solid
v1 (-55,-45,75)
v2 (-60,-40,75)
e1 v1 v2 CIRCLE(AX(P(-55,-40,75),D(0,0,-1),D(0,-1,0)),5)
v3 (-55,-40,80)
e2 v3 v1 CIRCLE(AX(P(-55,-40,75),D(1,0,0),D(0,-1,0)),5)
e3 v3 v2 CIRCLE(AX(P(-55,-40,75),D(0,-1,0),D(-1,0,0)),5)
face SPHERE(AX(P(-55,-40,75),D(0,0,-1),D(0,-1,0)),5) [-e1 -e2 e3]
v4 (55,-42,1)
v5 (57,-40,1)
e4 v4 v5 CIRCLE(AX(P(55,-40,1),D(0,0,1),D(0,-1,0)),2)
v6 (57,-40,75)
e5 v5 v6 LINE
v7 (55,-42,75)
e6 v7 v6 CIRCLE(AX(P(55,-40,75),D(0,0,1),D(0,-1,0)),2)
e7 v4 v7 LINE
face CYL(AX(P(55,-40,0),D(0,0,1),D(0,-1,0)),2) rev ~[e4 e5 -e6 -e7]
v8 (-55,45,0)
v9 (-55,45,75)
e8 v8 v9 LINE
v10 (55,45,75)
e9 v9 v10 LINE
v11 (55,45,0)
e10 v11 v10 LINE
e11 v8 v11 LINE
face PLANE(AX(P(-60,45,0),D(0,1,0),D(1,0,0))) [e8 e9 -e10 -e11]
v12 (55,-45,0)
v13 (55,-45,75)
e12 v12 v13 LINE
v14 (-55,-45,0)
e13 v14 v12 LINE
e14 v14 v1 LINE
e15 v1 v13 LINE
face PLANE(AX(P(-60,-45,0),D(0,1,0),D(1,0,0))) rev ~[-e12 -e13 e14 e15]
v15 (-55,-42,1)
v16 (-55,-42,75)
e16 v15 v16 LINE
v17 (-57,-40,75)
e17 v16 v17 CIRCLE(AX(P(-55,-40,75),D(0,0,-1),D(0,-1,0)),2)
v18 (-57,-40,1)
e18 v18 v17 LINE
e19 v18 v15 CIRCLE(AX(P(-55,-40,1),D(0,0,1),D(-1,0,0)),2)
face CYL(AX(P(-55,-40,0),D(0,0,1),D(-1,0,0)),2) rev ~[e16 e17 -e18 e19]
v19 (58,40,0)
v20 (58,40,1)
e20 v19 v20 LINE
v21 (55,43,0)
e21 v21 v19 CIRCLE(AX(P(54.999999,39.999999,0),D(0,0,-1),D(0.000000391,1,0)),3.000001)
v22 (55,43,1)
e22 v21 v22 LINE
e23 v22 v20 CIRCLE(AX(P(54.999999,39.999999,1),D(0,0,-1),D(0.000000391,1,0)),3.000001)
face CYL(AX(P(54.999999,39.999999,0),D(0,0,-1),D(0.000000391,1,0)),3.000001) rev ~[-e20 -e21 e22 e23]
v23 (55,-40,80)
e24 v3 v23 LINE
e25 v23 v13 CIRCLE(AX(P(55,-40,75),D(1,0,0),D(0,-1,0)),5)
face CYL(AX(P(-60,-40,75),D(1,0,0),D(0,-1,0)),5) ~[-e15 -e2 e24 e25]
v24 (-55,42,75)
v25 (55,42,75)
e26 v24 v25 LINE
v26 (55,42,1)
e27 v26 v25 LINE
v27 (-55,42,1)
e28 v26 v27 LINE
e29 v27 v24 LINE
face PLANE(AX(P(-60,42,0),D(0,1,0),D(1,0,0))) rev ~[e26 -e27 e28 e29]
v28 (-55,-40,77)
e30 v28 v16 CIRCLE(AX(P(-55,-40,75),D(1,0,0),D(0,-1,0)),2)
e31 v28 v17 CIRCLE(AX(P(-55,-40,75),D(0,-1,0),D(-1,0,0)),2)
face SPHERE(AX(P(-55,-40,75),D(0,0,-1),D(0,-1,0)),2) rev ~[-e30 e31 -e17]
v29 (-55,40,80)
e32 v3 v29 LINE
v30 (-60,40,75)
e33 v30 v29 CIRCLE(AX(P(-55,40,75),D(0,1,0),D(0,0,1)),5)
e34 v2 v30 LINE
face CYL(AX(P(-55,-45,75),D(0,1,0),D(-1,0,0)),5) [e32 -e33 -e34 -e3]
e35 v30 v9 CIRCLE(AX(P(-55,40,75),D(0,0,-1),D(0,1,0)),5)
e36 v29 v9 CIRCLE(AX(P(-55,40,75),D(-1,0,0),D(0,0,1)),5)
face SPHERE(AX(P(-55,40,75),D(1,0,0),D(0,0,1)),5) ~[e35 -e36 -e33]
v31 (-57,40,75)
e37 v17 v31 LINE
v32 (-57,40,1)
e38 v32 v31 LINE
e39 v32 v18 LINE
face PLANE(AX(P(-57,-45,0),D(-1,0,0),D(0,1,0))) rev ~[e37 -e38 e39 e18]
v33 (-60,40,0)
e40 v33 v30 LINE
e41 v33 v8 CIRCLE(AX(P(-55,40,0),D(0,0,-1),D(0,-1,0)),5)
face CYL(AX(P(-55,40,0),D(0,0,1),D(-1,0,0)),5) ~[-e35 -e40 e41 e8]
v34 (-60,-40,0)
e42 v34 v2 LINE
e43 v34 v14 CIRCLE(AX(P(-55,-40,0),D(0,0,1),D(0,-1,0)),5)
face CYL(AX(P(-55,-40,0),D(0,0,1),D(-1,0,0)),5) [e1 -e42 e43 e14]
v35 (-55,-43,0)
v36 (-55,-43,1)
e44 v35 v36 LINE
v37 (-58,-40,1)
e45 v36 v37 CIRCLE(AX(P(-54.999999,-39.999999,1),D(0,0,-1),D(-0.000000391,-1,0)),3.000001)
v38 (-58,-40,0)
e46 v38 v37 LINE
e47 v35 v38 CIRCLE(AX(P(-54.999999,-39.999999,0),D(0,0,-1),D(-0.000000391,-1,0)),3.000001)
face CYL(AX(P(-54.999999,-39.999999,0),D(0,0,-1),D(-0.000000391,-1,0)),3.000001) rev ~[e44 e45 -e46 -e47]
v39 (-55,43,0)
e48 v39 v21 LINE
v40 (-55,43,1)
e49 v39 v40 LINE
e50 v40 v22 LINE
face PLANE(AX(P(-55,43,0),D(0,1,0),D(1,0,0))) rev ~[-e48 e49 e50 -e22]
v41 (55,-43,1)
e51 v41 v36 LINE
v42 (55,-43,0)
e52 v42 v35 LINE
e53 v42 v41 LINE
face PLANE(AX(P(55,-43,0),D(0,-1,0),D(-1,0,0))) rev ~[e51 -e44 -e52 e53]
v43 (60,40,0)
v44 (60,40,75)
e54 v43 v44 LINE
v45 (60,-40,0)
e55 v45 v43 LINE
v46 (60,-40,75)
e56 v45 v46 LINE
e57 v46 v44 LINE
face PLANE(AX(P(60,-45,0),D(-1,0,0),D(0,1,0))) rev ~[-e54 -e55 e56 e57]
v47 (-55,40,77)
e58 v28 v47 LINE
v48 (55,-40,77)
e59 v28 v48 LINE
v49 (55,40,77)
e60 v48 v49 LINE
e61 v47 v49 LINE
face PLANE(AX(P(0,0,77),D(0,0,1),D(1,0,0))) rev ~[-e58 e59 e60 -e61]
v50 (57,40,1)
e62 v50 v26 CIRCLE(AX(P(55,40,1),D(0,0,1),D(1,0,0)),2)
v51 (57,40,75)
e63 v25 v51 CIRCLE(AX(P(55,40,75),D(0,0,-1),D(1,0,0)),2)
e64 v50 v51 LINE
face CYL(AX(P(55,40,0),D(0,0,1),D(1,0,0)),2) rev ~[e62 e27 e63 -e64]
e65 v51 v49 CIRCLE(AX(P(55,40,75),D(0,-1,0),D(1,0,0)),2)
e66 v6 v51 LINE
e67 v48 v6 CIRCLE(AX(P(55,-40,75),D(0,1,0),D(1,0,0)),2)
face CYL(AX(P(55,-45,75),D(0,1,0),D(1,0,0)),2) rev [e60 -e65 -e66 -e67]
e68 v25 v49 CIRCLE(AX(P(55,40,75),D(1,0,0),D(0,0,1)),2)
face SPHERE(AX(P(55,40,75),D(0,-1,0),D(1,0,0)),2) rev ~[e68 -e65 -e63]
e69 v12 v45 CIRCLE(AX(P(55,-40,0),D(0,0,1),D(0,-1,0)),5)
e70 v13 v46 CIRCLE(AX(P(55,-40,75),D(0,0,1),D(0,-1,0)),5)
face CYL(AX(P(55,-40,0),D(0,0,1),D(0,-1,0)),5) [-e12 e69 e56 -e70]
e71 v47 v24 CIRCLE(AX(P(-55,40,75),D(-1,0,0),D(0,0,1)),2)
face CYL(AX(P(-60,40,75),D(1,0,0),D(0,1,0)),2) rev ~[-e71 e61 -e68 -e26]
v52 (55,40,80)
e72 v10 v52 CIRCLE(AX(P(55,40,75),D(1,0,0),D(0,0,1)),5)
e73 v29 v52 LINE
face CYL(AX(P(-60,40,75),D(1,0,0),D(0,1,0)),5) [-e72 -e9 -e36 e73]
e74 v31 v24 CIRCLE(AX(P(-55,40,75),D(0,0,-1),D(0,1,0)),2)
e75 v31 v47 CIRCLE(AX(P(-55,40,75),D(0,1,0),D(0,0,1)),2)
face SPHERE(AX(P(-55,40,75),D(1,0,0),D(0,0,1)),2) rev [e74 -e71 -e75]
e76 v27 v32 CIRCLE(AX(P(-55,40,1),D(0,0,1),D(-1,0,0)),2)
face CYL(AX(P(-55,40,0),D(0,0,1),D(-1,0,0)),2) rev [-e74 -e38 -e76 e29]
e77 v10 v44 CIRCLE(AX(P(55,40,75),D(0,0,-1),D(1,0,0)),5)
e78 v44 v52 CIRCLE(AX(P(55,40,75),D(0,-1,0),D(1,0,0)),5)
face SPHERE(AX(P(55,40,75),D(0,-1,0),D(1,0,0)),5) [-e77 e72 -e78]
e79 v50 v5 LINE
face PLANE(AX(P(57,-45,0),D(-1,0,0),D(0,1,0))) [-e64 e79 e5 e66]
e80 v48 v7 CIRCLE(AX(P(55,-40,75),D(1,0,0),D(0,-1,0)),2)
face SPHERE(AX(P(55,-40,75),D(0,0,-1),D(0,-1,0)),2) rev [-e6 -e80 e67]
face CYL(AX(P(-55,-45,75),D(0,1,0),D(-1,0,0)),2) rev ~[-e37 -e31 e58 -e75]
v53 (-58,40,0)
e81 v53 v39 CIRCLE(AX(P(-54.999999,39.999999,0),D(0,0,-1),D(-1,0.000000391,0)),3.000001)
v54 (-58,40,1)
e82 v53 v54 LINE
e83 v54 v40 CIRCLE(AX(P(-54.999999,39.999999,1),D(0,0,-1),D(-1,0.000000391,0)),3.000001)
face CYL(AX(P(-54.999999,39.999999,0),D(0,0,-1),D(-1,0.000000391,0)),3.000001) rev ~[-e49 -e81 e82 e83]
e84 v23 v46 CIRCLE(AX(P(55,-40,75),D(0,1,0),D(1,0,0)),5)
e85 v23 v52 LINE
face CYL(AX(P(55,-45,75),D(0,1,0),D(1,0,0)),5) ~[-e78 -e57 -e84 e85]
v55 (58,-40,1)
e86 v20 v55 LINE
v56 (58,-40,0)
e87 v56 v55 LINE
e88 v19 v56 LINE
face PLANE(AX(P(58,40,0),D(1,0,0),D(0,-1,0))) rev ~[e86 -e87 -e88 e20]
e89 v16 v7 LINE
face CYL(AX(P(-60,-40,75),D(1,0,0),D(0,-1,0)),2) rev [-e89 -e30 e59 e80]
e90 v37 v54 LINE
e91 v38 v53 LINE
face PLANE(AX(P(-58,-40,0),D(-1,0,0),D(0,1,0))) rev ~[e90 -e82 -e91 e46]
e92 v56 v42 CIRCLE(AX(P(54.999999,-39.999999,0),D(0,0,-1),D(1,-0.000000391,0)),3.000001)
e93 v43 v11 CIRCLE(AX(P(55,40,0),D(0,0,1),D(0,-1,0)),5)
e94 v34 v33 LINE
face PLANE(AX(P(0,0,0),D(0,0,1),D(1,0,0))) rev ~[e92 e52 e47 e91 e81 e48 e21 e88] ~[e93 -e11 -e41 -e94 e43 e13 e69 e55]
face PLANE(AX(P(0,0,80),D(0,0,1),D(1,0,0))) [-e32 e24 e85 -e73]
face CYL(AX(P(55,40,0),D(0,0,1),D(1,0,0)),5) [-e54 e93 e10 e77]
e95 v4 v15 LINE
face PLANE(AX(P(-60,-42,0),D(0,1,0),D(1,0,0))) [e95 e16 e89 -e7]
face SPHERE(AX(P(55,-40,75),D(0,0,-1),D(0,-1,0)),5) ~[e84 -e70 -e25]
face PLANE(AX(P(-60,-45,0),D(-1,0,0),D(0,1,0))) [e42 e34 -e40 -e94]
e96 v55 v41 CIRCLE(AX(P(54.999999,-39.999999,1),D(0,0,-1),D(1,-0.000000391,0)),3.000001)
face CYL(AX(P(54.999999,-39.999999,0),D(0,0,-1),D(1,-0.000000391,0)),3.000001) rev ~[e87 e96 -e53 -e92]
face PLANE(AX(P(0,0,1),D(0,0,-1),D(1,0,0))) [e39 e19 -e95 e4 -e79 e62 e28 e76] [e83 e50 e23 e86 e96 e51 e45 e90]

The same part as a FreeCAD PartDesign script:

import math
import FreeCAD as App
import Part
import Sketcher
from FreeCAD import Vector


def edges_at(feature, points):
    """Names of the edges that pass closest to the given points."""
    edges = feature.Shape.Edges
    near = lambda p: min(range(len(edges)), key=lambda i: edges[i].distToShape(Part.Vertex(*p))[0])
    return sorted({f"Edge{near(p) + 1}" for p in points})


def faces_at(feature, points):
    """Names of the faces that lie closest to the given points."""
    faces = feature.Shape.Faces
    near = lambda p: min(range(len(faces)), key=lambda i: faces[i].distToShape(Part.Vertex(*p))[0])
    return sorted({f"Face{near(p) + 1}" for p in points})


def add_polygon(sketch, points):
    """Adds a closed chain of lines whose ends are joined by coincident constraints."""
    first, n = sketch.GeometryCount, len(points)
    for a, b in zip(points, points[1:] + points[:1]):
        sketch.addGeometry(Part.LineSegment(App.Vector(*a, 0), App.Vector(*b, 0)), False)
    for i in range(n):
        sketch.addConstraint(Sketcher.Constraint("Coincident", first + i, 2, first + (i + 1) % n, 1))

doc = App.newDocument("Part")
body = doc.addObject("PartDesign::Body", "Body")

sketch1 = doc.addObject("Sketcher::SketchObject", "Sketch")
body.addObject(sketch1)
sketch1.AttachmentSupport = (doc.XY_Plane, [""])
sketch1.MapMode = "FlatFace"
add_polygon(sketch1, [(-60, 45), (-60, -45), (60, -45), (60, 45)])
sketch1.addConstraint([
    Sketcher.Constraint("Vertical", 0),
    Sketcher.Constraint("Horizontal", 1),
    Sketcher.Constraint("Vertical", 2),
    Sketcher.Constraint("Horizontal", 3),
    Sketcher.Constraint("Symmetric", 0, 2, 2, 2, -1, 1),
    Sketcher.Constraint("DistanceX", 1, 1, 1, 2, 120.0),
    Sketcher.Constraint("DistanceY", 0, 2, 0, 1, 90.0),
])
pad1 = doc.addObject("PartDesign::Pad", "Pad")
body.addObject(pad1)
pad1.Profile = sketch1
pad1.Length = 80
doc.recompute()

fillet = doc.addObject("PartDesign::Fillet", "Fillet")
body.addObject(fillet)
fillet.Base = (pad1, edges_at(pad1, [
    (60, -45, 40),
    (-60, -45, 40),
    (0, -45, 80),
    (60, 0, 80),
    (60, 45, 40),
    (0, 45, 80),
    (-60, 0, 80),
    (-60, 45, 40),
]))
fillet.Radius = 5
doc.recompute()

thickness = doc.addObject("PartDesign::Thickness", "Thickness")
body.addObject(thickness)
thickness.Base = (fillet, faces_at(fillet, [(0, 0, 0)]))
thickness.Value = 3
thickness.Reversed = True
thickness.Join = "Arc"

sketch2 = doc.addObject("Sketcher::SketchObject", "Sketch001")
body.addObject(sketch2)
sketch2.AttachmentSupport = (doc.XY_Plane, [""])
sketch2.MapMode = "FlatFace"
sketch2.addGeometry([
    Part.ArcOfCircle(Part.Circle(Vector(55, -40, 0), Vector(0, 0, 1), 3), math.radians(-90), math.radians(0)),
    Part.LineSegment(Vector(55, -43, 0), Vector(-55, -43, 0)),
    Part.ArcOfCircle(Part.Circle(Vector(-55, -40, 0), Vector(0, 0, 1), 3), math.radians(-180), math.radians(-90)),
    Part.LineSegment(Vector(-58, -40, 0), Vector(-58, 40, 0)),
    Part.ArcOfCircle(Part.Circle(Vector(-55, 40, 0), Vector(0, 0, 1), 3), math.radians(90), math.radians(180)),
    Part.LineSegment(Vector(-55, 43, 0), Vector(55, 43, 0)),
    Part.ArcOfCircle(Part.Circle(Vector(55, 40, 0), Vector(0, 0, 1), 3), math.radians(0), math.radians(90)),
    Part.LineSegment(Vector(58, 40, 0), Vector(58, -40, 0)),
], False)
sketch2.addConstraint([
    Sketcher.Constraint("Tangent", 0, 1, 1, 1),
    Sketcher.Constraint("Tangent", 1, 2, 2, 2),
    Sketcher.Constraint("Tangent", 2, 1, 3, 1),
    Sketcher.Constraint("Tangent", 3, 2, 4, 2),
    Sketcher.Constraint("Tangent", 4, 1, 5, 1),
    Sketcher.Constraint("Tangent", 5, 2, 6, 2),
    Sketcher.Constraint("Tangent", 6, 1, 7, 1),
    Sketcher.Constraint("Tangent", 7, 2, 0, 2),
    Sketcher.Constraint("Horizontal", 1),
    Sketcher.Constraint("Vertical", 3),
    Sketcher.Constraint("Horizontal", 5),
    Sketcher.Constraint("Vertical", 7),
    Sketcher.Constraint("Equal", 0, 2),
    Sketcher.Constraint("Equal", 2, 4),
    Sketcher.Constraint("Equal", 4, 6),
    Sketcher.Constraint("Symmetric", 0, 3, 4, 3, -1, 1),
    Sketcher.Constraint("Radius", 0, 3.000001),
    Sketcher.Constraint("DistanceX", 1, 2, 1, 1, 110.0),
    Sketcher.Constraint("DistanceY", 3, 1, 3, 2, 80.0),
])
pocket1 = doc.addObject("PartDesign::Pocket", "Pocket")
body.addObject(pocket1)
pocket1.Profile = sketch2
pocket1.Length = 1
pocket1.Reversed = True

doc.recompute()
